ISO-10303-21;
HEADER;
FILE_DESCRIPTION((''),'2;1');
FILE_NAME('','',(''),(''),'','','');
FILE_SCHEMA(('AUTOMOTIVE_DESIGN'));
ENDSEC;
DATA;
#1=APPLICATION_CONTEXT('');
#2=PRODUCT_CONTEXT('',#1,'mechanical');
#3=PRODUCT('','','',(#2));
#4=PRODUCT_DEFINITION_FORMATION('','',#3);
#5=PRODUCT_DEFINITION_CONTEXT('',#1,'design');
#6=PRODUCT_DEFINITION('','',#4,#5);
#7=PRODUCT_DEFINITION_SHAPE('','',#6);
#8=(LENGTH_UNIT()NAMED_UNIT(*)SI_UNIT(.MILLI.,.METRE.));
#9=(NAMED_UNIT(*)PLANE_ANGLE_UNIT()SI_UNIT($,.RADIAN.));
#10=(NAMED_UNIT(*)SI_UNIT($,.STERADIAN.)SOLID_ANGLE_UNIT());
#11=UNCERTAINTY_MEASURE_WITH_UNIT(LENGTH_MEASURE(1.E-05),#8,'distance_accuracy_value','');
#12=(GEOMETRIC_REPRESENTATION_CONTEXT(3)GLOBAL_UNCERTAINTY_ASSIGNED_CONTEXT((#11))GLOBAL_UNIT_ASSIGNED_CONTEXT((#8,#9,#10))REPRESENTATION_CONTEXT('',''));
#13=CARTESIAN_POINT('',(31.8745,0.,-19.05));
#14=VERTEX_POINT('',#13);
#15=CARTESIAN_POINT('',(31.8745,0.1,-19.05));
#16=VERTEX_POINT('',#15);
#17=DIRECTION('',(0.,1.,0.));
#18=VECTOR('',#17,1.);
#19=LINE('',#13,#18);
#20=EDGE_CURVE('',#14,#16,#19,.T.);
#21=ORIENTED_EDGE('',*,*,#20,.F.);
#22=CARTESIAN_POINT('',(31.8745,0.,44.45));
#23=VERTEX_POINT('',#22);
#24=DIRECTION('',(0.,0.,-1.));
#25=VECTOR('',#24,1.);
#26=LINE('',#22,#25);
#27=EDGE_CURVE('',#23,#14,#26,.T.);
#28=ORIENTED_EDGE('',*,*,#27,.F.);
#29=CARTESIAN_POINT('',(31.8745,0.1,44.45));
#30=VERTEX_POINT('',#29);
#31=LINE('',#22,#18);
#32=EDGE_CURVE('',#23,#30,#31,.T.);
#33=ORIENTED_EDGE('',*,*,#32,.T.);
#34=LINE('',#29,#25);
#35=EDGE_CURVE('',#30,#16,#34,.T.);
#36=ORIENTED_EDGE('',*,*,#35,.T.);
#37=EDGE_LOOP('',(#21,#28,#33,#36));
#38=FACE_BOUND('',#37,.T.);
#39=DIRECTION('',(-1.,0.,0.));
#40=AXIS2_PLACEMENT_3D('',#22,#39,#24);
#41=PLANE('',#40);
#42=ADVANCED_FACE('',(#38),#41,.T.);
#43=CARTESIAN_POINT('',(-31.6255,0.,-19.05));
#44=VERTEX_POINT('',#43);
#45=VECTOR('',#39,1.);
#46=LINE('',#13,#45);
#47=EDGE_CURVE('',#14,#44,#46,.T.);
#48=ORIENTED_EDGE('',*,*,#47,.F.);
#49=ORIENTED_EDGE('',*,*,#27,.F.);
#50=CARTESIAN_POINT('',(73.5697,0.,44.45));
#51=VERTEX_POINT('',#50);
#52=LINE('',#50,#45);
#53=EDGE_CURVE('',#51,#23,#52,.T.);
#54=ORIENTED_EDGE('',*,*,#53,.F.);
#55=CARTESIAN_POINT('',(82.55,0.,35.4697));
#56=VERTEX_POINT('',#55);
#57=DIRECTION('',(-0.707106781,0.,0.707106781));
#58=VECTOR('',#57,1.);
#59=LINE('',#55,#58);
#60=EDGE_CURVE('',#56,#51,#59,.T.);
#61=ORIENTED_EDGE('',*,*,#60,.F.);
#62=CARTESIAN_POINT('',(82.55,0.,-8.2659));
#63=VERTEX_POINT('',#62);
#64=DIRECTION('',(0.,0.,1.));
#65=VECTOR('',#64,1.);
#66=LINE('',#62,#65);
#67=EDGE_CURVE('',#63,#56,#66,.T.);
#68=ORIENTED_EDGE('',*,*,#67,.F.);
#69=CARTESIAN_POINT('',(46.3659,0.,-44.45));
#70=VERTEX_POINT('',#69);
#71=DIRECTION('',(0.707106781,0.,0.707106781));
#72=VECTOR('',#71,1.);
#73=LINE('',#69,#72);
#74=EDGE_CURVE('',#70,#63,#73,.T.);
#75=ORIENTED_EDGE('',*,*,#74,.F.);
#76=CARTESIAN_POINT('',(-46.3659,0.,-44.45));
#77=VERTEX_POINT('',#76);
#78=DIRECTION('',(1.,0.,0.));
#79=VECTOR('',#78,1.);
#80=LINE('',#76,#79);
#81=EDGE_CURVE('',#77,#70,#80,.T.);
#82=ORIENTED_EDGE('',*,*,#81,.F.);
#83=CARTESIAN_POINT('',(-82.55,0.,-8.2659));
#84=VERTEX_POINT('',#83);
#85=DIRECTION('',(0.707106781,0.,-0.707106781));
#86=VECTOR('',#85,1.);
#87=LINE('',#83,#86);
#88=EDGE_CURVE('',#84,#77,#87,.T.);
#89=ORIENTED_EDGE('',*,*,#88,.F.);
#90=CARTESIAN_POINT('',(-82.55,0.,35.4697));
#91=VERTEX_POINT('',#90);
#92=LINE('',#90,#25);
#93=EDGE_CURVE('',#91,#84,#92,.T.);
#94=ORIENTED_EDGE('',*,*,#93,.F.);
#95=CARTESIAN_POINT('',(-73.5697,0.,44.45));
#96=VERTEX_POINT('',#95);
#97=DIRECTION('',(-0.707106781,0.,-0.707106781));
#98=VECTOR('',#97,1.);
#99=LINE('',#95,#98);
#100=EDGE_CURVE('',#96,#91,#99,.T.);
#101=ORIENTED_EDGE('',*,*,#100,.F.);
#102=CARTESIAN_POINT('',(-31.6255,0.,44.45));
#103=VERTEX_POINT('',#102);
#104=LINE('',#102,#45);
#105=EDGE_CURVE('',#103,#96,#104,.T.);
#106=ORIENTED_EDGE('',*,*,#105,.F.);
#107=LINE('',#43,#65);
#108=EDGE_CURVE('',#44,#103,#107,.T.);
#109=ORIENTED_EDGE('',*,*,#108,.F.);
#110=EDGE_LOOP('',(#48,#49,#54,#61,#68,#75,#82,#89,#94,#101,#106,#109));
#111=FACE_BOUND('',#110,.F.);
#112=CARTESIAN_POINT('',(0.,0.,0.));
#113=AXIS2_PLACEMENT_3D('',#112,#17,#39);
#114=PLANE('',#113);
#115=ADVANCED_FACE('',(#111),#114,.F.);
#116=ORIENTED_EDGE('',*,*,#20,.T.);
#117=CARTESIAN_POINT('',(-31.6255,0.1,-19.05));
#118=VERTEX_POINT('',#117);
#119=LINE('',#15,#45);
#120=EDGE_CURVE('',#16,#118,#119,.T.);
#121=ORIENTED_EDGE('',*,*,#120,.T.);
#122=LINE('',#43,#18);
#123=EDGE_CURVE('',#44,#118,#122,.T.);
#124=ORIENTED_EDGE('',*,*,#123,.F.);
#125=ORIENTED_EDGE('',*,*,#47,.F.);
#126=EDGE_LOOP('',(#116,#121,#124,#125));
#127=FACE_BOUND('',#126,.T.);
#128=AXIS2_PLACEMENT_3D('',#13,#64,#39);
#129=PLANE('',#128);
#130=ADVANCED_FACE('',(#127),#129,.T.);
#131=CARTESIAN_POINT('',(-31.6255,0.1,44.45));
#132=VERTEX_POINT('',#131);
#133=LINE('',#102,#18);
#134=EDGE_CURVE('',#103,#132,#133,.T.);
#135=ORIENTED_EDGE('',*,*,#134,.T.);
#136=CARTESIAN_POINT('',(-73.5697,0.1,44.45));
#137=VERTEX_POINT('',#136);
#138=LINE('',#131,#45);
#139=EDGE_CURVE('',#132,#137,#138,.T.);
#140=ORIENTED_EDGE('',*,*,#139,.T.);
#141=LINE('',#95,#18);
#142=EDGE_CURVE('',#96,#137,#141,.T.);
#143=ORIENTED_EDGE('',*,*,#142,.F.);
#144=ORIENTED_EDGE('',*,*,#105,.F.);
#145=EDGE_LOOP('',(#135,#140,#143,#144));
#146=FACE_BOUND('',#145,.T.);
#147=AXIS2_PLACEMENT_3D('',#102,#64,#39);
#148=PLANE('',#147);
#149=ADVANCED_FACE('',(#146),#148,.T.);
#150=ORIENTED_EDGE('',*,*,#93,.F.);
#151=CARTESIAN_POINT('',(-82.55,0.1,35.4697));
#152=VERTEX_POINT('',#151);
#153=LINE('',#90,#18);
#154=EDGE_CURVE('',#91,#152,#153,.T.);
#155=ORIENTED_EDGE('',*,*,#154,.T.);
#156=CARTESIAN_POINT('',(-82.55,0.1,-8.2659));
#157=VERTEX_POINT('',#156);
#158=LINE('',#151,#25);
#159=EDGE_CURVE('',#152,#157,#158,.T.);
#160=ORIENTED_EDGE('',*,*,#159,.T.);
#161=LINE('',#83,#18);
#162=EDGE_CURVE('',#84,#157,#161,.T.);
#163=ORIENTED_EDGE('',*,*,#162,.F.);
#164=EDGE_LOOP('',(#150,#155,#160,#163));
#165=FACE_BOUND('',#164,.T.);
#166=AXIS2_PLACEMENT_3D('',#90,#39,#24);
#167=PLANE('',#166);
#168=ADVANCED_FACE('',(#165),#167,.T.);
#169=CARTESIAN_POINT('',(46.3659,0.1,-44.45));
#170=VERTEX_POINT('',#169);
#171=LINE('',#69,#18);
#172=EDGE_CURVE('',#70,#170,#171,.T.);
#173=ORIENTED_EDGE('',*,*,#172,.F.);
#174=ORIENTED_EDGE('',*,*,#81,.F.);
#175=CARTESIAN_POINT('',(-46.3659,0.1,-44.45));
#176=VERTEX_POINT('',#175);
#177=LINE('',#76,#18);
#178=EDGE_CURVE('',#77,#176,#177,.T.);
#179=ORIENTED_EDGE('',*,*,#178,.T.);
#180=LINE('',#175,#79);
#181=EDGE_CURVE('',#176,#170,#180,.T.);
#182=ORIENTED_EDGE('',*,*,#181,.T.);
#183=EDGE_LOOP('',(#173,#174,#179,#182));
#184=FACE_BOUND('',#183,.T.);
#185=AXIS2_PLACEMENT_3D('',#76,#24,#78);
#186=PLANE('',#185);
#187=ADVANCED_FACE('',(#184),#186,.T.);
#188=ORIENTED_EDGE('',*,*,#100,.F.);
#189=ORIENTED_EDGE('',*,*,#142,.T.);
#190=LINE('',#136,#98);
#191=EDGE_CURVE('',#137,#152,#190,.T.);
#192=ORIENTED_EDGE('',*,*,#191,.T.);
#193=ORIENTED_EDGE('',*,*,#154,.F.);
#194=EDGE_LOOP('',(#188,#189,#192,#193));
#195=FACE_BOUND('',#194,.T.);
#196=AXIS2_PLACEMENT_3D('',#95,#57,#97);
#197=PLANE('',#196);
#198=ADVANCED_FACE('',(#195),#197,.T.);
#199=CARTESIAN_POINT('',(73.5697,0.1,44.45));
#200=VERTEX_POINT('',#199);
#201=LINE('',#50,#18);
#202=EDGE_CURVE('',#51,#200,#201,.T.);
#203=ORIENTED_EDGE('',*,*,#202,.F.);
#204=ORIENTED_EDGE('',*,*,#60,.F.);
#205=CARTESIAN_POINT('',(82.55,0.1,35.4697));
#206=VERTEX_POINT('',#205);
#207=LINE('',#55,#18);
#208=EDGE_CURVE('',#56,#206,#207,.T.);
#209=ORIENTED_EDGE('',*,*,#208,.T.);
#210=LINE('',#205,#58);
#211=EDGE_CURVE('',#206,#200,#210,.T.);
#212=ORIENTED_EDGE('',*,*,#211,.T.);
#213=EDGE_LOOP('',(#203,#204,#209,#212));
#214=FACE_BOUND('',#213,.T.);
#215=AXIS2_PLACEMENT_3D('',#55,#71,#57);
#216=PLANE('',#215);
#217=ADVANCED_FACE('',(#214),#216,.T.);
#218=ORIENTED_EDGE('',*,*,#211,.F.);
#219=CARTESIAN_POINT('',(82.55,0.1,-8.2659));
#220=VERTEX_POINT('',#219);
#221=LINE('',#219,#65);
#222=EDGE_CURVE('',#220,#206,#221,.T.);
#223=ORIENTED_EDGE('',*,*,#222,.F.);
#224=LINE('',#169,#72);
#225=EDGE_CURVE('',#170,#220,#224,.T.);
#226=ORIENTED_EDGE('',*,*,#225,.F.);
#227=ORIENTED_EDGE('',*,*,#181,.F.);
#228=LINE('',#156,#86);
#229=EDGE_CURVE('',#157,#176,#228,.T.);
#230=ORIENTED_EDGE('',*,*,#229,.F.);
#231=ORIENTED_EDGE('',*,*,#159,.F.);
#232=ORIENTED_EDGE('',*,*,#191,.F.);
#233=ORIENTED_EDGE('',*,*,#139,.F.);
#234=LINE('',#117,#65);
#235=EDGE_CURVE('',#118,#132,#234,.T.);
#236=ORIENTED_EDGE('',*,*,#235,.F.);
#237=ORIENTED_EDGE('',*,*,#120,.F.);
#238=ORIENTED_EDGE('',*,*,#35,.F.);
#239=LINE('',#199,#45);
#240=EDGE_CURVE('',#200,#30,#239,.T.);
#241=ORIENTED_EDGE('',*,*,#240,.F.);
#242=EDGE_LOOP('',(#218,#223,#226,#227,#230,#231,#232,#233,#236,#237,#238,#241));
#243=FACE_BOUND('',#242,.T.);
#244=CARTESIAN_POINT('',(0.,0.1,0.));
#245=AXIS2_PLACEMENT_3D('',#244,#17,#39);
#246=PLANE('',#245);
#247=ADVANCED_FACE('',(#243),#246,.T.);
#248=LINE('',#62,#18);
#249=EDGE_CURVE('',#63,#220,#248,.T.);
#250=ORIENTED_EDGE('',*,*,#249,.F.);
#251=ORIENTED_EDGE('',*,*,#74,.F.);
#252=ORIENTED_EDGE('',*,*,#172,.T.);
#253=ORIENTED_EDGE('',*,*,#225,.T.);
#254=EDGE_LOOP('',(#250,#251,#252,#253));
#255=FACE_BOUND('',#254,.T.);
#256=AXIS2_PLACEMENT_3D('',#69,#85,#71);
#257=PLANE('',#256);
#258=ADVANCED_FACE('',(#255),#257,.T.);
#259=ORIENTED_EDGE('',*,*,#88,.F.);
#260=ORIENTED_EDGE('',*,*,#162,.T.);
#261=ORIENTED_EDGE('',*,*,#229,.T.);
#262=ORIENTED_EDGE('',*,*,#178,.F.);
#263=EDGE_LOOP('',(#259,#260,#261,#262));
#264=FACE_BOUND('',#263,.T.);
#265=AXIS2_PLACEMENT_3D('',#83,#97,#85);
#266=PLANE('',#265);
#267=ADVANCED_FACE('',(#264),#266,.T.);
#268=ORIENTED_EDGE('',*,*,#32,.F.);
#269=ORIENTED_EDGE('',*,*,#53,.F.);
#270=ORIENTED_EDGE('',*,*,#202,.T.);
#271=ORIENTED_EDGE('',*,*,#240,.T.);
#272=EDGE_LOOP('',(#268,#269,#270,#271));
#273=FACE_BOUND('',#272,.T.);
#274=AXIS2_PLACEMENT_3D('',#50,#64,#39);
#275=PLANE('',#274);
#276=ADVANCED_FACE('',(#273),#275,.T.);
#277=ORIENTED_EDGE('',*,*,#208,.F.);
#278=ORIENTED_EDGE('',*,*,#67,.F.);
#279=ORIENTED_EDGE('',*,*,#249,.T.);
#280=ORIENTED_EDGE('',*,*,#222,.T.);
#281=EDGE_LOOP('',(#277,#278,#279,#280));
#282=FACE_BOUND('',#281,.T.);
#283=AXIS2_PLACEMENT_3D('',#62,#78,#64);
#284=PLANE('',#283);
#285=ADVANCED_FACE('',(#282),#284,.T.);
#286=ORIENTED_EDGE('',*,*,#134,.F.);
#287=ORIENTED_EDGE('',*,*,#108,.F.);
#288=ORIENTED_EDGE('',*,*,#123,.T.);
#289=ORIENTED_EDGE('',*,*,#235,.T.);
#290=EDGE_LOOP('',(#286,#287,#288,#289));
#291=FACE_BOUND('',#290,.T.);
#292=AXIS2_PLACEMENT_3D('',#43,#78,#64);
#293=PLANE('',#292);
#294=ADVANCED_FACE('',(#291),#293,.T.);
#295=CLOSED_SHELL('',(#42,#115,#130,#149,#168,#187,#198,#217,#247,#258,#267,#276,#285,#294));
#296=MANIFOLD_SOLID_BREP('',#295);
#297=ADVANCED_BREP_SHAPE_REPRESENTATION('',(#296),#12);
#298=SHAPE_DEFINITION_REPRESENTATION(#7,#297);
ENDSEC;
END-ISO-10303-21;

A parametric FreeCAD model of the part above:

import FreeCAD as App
import Part
import Sketcher

V = App.Vector
Q = App.Units.Quantity

doc = App.newDocument("Part")
body = doc.addObject("PartDesign::Body", "Body")

sketch1 = body.newObject("Sketcher::SketchObject", "Sketch")
sketch1.AttachmentSupport = (doc.getObject("XZ_Plane"), [""])
sketch1.MapMode = "FlatFace"
sketch1.addGeometry(Part.LineSegment(V(-46, -44, 0), V(-83, -8, 0)), False)
sketch1.addGeometry(Part.LineSegment(V(-83, -8, 0), V(-83, 35, 0)), False)
sketch1.addGeometry(Part.LineSegment(V(-83, 35, 0), V(-74, 44, 0)), False)
sketch1.addGeometry(Part.LineSegment(V(-74, 44, 0), V(-32, 44, 0)), False)
sketch1.addGeometry(Part.LineSegment(V(-32, 44, 0), V(-32, -19, 0)), False)
sketch1.addGeometry(Part.LineSegment(V(-32, -19, 0), V(32, -19, 0)), False)
sketch1.addGeometry(Part.LineSegment(V(32, -19, 0), V(32, 44, 0)), False)
sketch1.addGeometry(Part.LineSegment(V(32, 44, 0), V(74, 44, 0)), False)
sketch1.addGeometry(Part.LineSegment(V(74, 44, 0), V(83, 35, 0)), False)
sketch1.addGeometry(Part.LineSegment(V(83, 35, 0), V(83, -8, 0)), False)
sketch1.addGeometry(Part.LineSegment(V(83, -8, 0), V(46, -44, 0)), False)
sketch1.addGeometry(Part.LineSegment(V(46, -44, 0), V(-46, -44, 0)), False)
sketch1.addConstraint(Sketcher.Constraint("Coincident", 0, 2, 1, 1))
sketch1.addConstraint(Sketcher.Constraint("Coincident", 1, 2, 2, 1))
sketch1.addConstraint(Sketcher.Constraint("Coincident", 2, 2, 3, 1))
sketch1.addConstraint(Sketcher.Constraint("Coincident", 3, 2, 4, 1))
sketch1.addConstraint(Sketcher.Constraint("Coincident", 4, 2, 5, 1))
sketch1.addConstraint(Sketcher.Constraint("Coincident", 5, 2, 6, 1))
sketch1.addConstraint(Sketcher.Constraint("Coincident", 6, 2, 7, 1))
sketch1.addConstraint(Sketcher.Constraint("Coincident", 7, 2, 8, 1))
sketch1.addConstraint(Sketcher.Constraint("Coincident", 8, 2, 9, 1))
sketch1.addConstraint(Sketcher.Constraint("Coincident", 9, 2, 10, 1))
sketch1.addConstraint(Sketcher.Constraint("Coincident", 10, 2, 11, 1))
sketch1.addConstraint(Sketcher.Constraint("Coincident", 11, 2, 0, 1))
sketch1.addConstraint(Sketcher.Constraint("Vertical", 1))
sketch1.addConstraint(Sketcher.Constraint("Horizontal", 3))
sketch1.addConstraint(Sketcher.Constraint("Vertical", 4))
sketch1.addConstraint(Sketcher.Constraint("Horizontal", 5))
sketch1.addConstraint(Sketcher.Constraint("Vertical", 6))
sketch1.addConstraint(Sketcher.Constraint("Horizontal", 7))
sketch1.addConstraint(Sketcher.Constraint("Vertical", 9))
sketch1.addConstraint(Sketcher.Constraint("Horizontal", 11))
sketch1.addConstraint(Sketcher.Constraint("Symmetric", 2, 2, 7, 2, -2))
sketch1.addConstraint(Sketcher.Constraint("Symmetric", 1, 2, 8, 2, -2))
sketch1.addConstraint(Sketcher.Constraint("Perpendicular", 0, 2))
sketch1.addConstraint(Sketcher.Constraint("Perpendicular", 2, 8))
sketch1.addConstraint(Sketcher.Constraint("Perpendicular", 8, 10))
sketch1.addConstraint(Sketcher.Constraint("Horizontal", 0, 2, 9, 2))
sketch1.addConstraint(Sketcher.Constraint("Equal", 5, 4))
sketch1.addConstraint(Sketcher.Constraint("DistanceX", 5, 1, 5, 2, Q("2.5 in")))
sketch1.addConstraint(Sketcher.Constraint("DistanceY", 10, 2, 5, 2, Q("1 in")))
sketch1.addConstraint(Sketcher.Constraint("Distance", 2, Q("0.5 in")))
sketch1.addConstraint(Sketcher.Constraint("DistanceX", 0, 2, -1, 1, Q("3.25 in")))
sketch1.addConstraint(Sketcher.Constraint("DistanceY", -1, 1, 2, 2, Q("1.75 in")))
sketch1.addConstraint(Sketcher.Constraint("DistanceX", 3, 1, 3, 2, 41.9442))
sketch1.addConstraint(Sketcher.Constraint("DistanceX", 11, 2, 11, 1, 92.7318))
pad1 = body.newObject("PartDesign::Pad", "Pad")
pad1.Profile = sketch1
pad1.Length = 0.1
pad1.Reversed = True

doc.recompute()
